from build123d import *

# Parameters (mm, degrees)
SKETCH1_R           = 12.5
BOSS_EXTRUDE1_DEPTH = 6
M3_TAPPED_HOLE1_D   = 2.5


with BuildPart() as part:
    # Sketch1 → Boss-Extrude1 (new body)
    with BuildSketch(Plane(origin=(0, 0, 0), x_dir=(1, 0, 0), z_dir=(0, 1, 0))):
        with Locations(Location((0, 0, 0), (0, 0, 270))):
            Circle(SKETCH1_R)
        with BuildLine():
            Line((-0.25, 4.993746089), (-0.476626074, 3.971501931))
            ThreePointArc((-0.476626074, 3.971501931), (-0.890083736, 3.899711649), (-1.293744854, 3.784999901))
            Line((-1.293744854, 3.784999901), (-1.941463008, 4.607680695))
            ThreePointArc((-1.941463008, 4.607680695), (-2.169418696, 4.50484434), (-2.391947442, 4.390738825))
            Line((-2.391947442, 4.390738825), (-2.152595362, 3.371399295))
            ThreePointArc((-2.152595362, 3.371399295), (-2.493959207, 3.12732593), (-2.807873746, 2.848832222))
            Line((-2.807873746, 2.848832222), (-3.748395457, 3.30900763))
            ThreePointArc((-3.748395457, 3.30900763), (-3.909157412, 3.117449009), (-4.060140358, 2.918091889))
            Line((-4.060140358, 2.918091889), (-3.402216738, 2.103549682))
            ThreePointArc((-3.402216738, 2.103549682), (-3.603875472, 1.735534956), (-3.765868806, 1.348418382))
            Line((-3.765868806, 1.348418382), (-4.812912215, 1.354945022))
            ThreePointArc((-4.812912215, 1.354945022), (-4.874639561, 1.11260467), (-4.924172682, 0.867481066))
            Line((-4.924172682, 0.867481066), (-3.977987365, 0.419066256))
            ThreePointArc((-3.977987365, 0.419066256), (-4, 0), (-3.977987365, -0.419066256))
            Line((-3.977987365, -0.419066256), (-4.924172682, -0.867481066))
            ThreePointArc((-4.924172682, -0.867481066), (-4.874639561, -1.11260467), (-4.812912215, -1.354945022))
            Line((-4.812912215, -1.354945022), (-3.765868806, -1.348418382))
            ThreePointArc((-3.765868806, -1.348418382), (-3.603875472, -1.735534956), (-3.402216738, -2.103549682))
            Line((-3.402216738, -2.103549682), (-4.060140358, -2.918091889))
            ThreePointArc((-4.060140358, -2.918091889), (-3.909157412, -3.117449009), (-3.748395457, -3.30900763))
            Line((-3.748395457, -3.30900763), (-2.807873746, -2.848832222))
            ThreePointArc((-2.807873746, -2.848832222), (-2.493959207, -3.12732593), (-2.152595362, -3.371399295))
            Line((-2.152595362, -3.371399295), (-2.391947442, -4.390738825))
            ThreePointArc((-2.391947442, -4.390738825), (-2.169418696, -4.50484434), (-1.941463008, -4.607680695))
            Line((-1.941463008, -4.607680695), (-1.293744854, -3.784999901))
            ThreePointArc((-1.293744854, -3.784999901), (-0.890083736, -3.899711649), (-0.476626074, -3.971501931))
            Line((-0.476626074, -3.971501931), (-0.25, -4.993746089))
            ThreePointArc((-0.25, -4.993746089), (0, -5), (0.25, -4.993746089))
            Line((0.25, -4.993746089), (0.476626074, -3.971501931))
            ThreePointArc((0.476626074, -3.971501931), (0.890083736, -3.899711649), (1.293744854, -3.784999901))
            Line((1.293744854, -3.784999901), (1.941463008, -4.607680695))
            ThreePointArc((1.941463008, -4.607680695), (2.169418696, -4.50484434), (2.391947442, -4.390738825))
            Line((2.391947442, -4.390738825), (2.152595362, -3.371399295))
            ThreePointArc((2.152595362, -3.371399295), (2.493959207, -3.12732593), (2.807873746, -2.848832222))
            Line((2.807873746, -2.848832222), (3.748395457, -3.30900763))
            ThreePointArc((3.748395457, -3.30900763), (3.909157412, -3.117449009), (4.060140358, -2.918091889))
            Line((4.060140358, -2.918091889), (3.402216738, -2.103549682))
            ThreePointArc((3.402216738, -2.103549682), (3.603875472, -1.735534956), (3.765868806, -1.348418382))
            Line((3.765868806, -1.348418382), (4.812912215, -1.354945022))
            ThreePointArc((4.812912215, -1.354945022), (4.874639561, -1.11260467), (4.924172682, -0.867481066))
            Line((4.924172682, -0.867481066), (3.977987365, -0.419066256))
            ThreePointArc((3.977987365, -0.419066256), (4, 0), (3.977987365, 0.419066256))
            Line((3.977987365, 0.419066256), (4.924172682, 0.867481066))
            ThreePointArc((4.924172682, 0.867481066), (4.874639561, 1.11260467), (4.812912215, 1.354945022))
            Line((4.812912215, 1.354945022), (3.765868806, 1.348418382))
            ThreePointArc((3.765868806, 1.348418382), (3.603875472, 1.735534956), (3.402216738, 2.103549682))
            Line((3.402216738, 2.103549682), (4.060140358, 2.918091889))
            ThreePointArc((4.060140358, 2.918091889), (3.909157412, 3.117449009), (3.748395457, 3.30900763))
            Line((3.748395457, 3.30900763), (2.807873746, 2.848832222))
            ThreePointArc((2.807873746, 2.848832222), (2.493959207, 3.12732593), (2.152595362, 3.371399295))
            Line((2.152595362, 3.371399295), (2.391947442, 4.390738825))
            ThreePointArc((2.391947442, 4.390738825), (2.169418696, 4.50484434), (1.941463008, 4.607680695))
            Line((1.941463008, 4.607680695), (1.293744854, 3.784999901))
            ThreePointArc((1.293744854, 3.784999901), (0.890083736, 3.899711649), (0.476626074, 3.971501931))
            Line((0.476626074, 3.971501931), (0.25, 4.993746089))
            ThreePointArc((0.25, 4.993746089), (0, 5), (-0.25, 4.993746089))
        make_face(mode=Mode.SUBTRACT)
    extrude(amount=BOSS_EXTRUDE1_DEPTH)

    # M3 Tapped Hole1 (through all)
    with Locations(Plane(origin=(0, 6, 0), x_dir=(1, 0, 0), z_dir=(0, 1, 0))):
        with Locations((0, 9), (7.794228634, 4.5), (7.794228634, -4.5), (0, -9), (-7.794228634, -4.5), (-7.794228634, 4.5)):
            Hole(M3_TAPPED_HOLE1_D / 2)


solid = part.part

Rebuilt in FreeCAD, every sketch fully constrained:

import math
import FreeCAD as App
import Part
import Sketcher
from FreeCAD import Vector
Q = App.Units.Quantity

doc = App.newDocument("Part")
body = doc.addObject("PartDesign::Body", "Body")

# Sketch on XZ plane
sketch1 = doc.addObject("Sketcher::SketchObject", "Sketch")
body.addObject(sketch1)
sketch1.AttachmentSupport = (doc.XZ_Plane, [""])
sketch1.MapMode = "FlatFace"
sketch1.addGeometry([
    Part.Circle(Vector(0, 0, 0), Vector(0, 0, 1), 12.5),  # 0
    Part.LineSegment(Vector(-0.476626, -3.971502, 0), Vector(-0.25, -4.993746, 0)),  # 1
    Part.ArcOfCircle(Part.Circle(Vector(0, 0, 0), Vector(0, 0, 1), 5), math.radians(-92.865984), math.radians(-87.134016)),  # 2
    Part.LineSegment(Vector(0.25, -4.993746, 0), Vector(0.476626, -3.971502, 0)),  # 3
    Part.ArcOfCircle(Part.Circle(Vector(0, 0, 0), Vector(0, 0, 1), 4), math.radians(-83.156575), math.radians(-71.12914)),  # 4
    Part.LineSegment(Vector(1.293745, -3.785, 0), Vector(1.941463, -4.607681, 0)),  # 5
    Part.ArcOfCircle(Part.Circle(Vector(0, -0.000001, 0), Vector(0, 0, 1), 4.999999), math.radians(-67.151699), math.radians(-61.41973)),  # 6
    Part.LineSegment(Vector(2.391947, -4.390739, 0), Vector(2.152595, -3.371399, 0)),  # 7
    Part.ArcOfCircle(Part.Circle(Vector(0, 0, 0), Vector(0, 0, 1), 4), math.radians(-57.442289), math.radians(-45.414854)),  # 8
    Part.LineSegment(Vector(2.807874, -2.848832, 0), Vector(3.748395, -3.309008, 0)),  # 9
    Part.ArcOfCircle(Part.Circle(Vector(0, 0, 0), Vector(0, 0, 1), 5), math.radians(-41.437412), math.radians(-35.705445)),  # 10
    Part.LineSegment(Vector(4.06014, -2.918092, 0), Vector(3.402217, -2.10355, 0)),  # 11
    Part.ArcOfCircle(Part.Circle(Vector(0, 0, 0), Vector(0, 0, 1), 4), math.radians(-31.728003), math.radians(-19.700568)),  # 12
    Part.LineSegment(Vector(3.765869, -1.348418, 0), Vector(4.812912, -1.354945, 0)),  # 13
    Part.ArcOfCircle(Part.Circle(Vector(0, 0, 0), Vector(0, 0, 1), 5), math.radians(-15.723127), math.radians(-9.991159)),  # 14
    Part.LineSegment(Vector(4.924173, -0.867481, 0), Vector(3.977987, -0.419066, 0)),  # 15
    Part.ArcOfCircle(Part.Circle(Vector(0, 0, 0), Vector(0, 0, 1), 4), math.radians(-6.013717), math.radians(6.013717)),  # 16
    Part.LineSegment(Vector(3.977987, 0.419066, 0), Vector(4.924173, 0.867481, 0)),  # 17
    Part.ArcOfCircle(Part.Circle(Vector(0, 0, 0), Vector(0, 0, 1), 5), math.radians(9.991159), math.radians(15.723127)),  # 18
    Part.LineSegment(Vector(4.812912, 1.354945, 0), Vector(3.765869, 1.348418, 0)),  # 19
    Part.ArcOfCircle(Part.Circle(Vector(0, 0, 0), Vector(0, 0, 1), 4), math.radians(19.700568), math.radians(31.728003)),  # 20
    Part.LineSegment(Vector(3.402217, 2.10355, 0), Vector(4.06014, 2.918092, 0)),  # 21
    Part.ArcOfCircle(Part.Circle(Vector(0, 0, 0), Vector(0, 0, 1), 5), math.radians(35.705445), math.radians(41.437412)),  # 22
    Part.LineSegment(Vector(3.748395, 3.309008, 0), Vector(2.807874, 2.848832, 0)),  # 23
    Part.ArcOfCircle(Part.Circle(Vector(0, 0, 0), Vector(0, 0, 1), 4), math.radians(45.414854), math.radians(57.442289)),  # 24
    Part.LineSegment(Vector(2.152595, 3.371399, 0), Vector(2.391947, 4.390739, 0)),  # 25
    Part.ArcOfCircle(Part.Circle(Vector(0, 0.000001, 0), Vector(0, 0, 1), 4.999999), math.radians(61.41973), math.radians(67.151699)),  # 26
    Part.LineSegment(Vector(1.941463, 4.607681, 0), Vector(1.293745, 3.785, 0)),  # 27
    Part.ArcOfCircle(Part.Circle(Vector(0, 0, 0), Vector(0, 0, 1), 4), math.radians(71.12914), math.radians(83.156575)),  # 28
    Part.LineSegment(Vector(0.476626, 3.971502, 0), Vector(0.25, 4.993746, 0)),  # 29
    Part.ArcOfCircle(Part.Circle(Vector(0, 0, 0), Vector(0, 0, 1), 5), math.radians(87.134016), math.radians(92.865984)),  # 30
    Part.LineSegment(Vector(-0.25, 4.993746, 0), Vector(-0.476626, 3.971502, 0)),  # 31
    Part.ArcOfCircle(Part.Circle(Vector(0, 0, 0), Vector(0, 0, 1), 4), math.radians(96.843425), math.radians(108.87086)),  # 32
    Part.LineSegment(Vector(-1.293745, 3.785, 0), Vector(-1.941463, 4.607681, 0)),  # 33
    Part.ArcOfCircle(Part.Circle(Vector(0, 0.000001, 0), Vector(0, 0, 1), 4.999999), math.radians(112.848301), math.radians(118.58027)),  # 34
    Part.LineSegment(Vector(-2.391947, 4.390739, 0), Vector(-2.152595, 3.371399, 0)),  # 35
    Part.ArcOfCircle(Part.Circle(Vector(0, 0, 0), Vector(0, 0, 1), 4), math.radians(122.557711), math.radians(134.585146)),  # 36
    Part.LineSegment(Vector(-2.807874, 2.848832, 0), Vector(-3.748395, 3.309008, 0)),  # 37
    Part.ArcOfCircle(Part.Circle(Vector(0, 0, 0), Vector(0, 0, 1), 5), math.radians(138.562588), math.radians(144.294555)),  # 38
    Part.LineSegment(Vector(-4.06014, 2.918092, 0), Vector(-3.402217, 2.10355, 0)),  # 39
    Part.ArcOfCircle(Part.Circle(Vector(0, 0, 0), Vector(0, 0, 1), 4), math.radians(148.271997), math.radians(160.299432)),  # 40
    Part.LineSegment(Vector(-3.765869, 1.348418, 0), Vector(-4.812912, 1.354945, 0)),  # 41
    Part.ArcOfCircle(Part.Circle(Vector(0, 0, 0), Vector(0, 0, 1), 5), math.radians(164.276873), math.radians(170.008841)),  # 42
    Part.LineSegment(Vector(-4.924173, 0.867481, 0), Vector(-3.977987, 0.419066, 0)),  # 43
    Part.ArcOfCircle(Part.Circle(Vector(0, 0, 0), Vector(0, 0, 1), 4), math.radians(173.986283), math.radians(186.013717)),  # 44
    Part.LineSegment(Vector(-3.977987, -0.419066, 0), Vector(-4.924173, -0.867481, 0)),  # 45
    Part.ArcOfCircle(Part.Circle(Vector(0, 0, 0), Vector(0, 0, 1), 5), math.radians(-170.008841), math.radians(-164.276873)),  # 46
    Part.LineSegment(Vector(-4.812912, -1.354945, 0), Vector(-3.765869, -1.348418, 0)),  # 47
    Part.ArcOfCircle(Part.Circle(Vector(0, 0, 0), Vector(0, 0, 1), 4), math.radians(-160.299432), math.radians(-148.271997)),  # 48
    Part.LineSegment(Vector(-3.402217, -2.10355, 0), Vector(-4.06014, -2.918092, 0)),  # 49
    Part.ArcOfCircle(Part.Circle(Vector(0, 0, 0), Vector(0, 0, 1), 5), math.radians(-144.294555), math.radians(-138.562588)),  # 50
    Part.LineSegment(Vector(-3.748395, -3.309008, 0), Vector(-2.807874, -2.848832, 0)),  # 51
    Part.ArcOfCircle(Part.Circle(Vector(0, 0, 0), Vector(0, 0, 1), 4), math.radians(-134.585146), math.radians(-122.557711)),  # 52
    Part.LineSegment(Vector(-2.152595, -3.371399, 0), Vector(-2.391947, -4.390739, 0)),  # 53
    Part.ArcOfCircle(Part.Circle(Vector(0, -0.000001, 0), Vector(0, 0, 1), 4.999999), math.radians(-118.58027), math.radians(-112.848301)),  # 54
    Part.LineSegment(Vector(-1.941463, -4.607681, 0), Vector(-1.293745, -3.785, 0)),  # 55
    Part.ArcOfCircle(Part.Circle(Vector(0, 0, 0), Vector(0, 0, 1), 4), math.radians(-108.87086), math.radians(-96.843425)),  # 56
], False)
sketch1.addConstraint([
    Sketcher.Constraint("Coincident", 1, 2, 2, 1),
    Sketcher.Constraint("Coincident", 2, 2, 3, 1),
    Sketcher.Constraint("Coincident", 3, 2, 4, 1),
    Sketcher.Constraint("Coincident", 4, 2, 5, 1),
    Sketcher.Constraint("Coincident", 5, 2, 6, 1),
    Sketcher.Constraint("Coincident", 6, 2, 7, 1),
    Sketcher.Constraint("Coincident", 7, 2, 8, 1),
    Sketcher.Constraint("Coincident", 8, 2, 9, 1),
    Sketcher.Constraint("Coincident", 9, 2, 10, 1),
    Sketcher.Constraint("Coincident", 10, 2, 11, 1),
    Sketcher.Constraint("Coincident", 11, 2, 12, 1),
    Sketcher.Constraint("Coincident", 12, 2, 13, 1),
    Sketcher.Constraint("Coincident", 13, 2, 14, 1),
    Sketcher.Constraint("Coincident", 14, 2, 15, 1),
    Sketcher.Constraint("Coincident", 15, 2, 16, 1),
    Sketcher.Constraint("Coincident", 16, 2, 17, 1),
    Sketcher.Constraint("Coincident", 17, 2, 18, 1),
    Sketcher.Constraint("Coincident", 18, 2, 19, 1),
    Sketcher.Constraint("Coincident", 19, 2, 20, 1),
    Sketcher.Constraint("Coincident", 20, 2, 21, 1),
    Sketcher.Constraint("Coincident", 21, 2, 22, 1),
    Sketcher.Constraint("Coincident", 22, 2, 23, 1),
    Sketcher.Constraint("Coincident", 23, 2, 24, 1),
    Sketcher.Constraint("Coincident", 24, 2, 25, 1),
    Sketcher.Constraint("Coincident", 25, 2, 26, 1),
    Sketcher.Constraint("Coincident", 26, 2, 27, 1),
    Sketcher.Constraint("Coincident", 27, 2, 28, 1),
    Sketcher.Constraint("Coincident", 28, 2, 29, 1),
    Sketcher.Constraint("Coincident", 29, 2, 30, 1),
    Sketcher.Constraint("Coincident", 30, 2, 31, 1),
    Sketcher.Constraint("Coincident", 31, 2, 32, 1),
    Sketcher.Constraint("Coincident", 32, 2, 33, 1),
    Sketcher.Constraint("Coincident", 33, 2, 34, 1),
    Sketcher.Constraint("Coincident", 34, 2, 35, 1),
    Sketcher.Constraint("Coincident", 35, 2, 36, 1),
    Sketcher.Constraint("Coincident", 36, 2, 37, 1),
    Sketcher.Constraint("Coincident", 37, 2, 38, 1),
    Sketcher.Constraint("Coincident", 38, 2, 39, 1),
    Sketcher.Constraint("Coincident", 39, 2, 40, 1),
    Sketcher.Constraint("Coincident", 40, 2, 41, 1),
    Sketcher.Constraint("Coincident", 41, 2, 42, 1),
    Sketcher.Constraint("Coincident", 42, 2, 43, 1),
    Sketcher.Constraint("Coincident", 43, 2, 44, 1),
    Sketcher.Constraint("Coincident", 44, 2, 45, 1),
    Sketcher.Constraint("Coincident", 45, 2, 46, 1),
    Sketcher.Constraint("Coincident", 46, 2, 47, 1),
    Sketcher.Constraint("Coincident", 47, 2, 48, 1),
    Sketcher.Constraint("Coincident", 48, 2, 49, 1),
    Sketcher.Constraint("Coincident", 49, 2, 50, 1),
    Sketcher.Constraint("Coincident", 50, 2, 51, 1),
    Sketcher.Constraint("Coincident", 51, 2, 52, 1),
    Sketcher.Constraint("Coincident", 52, 2, 53, 1),
    Sketcher.Constraint("Coincident", 53, 2, 54, 1),
    Sketcher.Constraint("Coincident", 54, 2, 55, 1),
    Sketcher.Constraint("Coincident", 55, 2, 56, 1),
    Sketcher.Constraint("Coincident", 56, 2, 1, 1),
    Sketcher.Constraint("Coincident", 0, 3, -1, 1),
    Sketcher.Constraint("Coincident", 2, 3, -1, 1),
    Sketcher.Constraint("Coincident", 4, 3, -1, 1),
    Sketcher.Constraint("Coincident", 6, 3, -1, 1),
    Sketcher.Constraint("Coincident", 8, 3, -1, 1),
    Sketcher.Constraint("Coincident", 10, 3, -1, 1),
    Sketcher.Constraint("Coincident", 12, 3, -1, 1),
    Sketcher.Constraint("Coincident", 14, 3, -1, 1),
    Sketcher.Constraint("Coincident", 16, 3, -1, 1),
    Sketcher.Constraint("Coincident", 18, 3, -1, 1),
    Sketcher.Constraint("Coincident", 20, 3, -1, 1),
    Sketcher.Constraint("Coincident", 22, 3, -1, 1),
    Sketcher.Constraint("Coincident", 24, 3, -1, 1),
    Sketcher.Constraint("Coincident", 26, 3, -1, 1),
    Sketcher.Constraint("Coincident", 28, 3, -1, 1),
    Sketcher.Constraint("Coincident", 30, 3, -1, 1),
    Sketcher.Constraint("Coincident", 32, 3, -1, 1),
    Sketcher.Constraint("Coincident", 34, 3, -1, 1),
    Sketcher.Constraint("Coincident", 36, 3, -1, 1),
    Sketcher.Constraint("Coincident", 38, 3, -1, 1),
    Sketcher.Constraint("Coincident", 40, 3, -1, 1),
    Sketcher.Constraint("Coincident", 42, 3, -1, 1),
    Sketcher.Constraint("Coincident", 44, 3, -1, 1),
    Sketcher.Constraint("Coincident", 46, 3, -1, 1),
    Sketcher.Constraint("Coincident", 48, 3, -1, 1),
    Sketcher.Constraint("Coincident", 50, 3, -1, 1),
    Sketcher.Constraint("Coincident", 52, 3, -1, 1),
    Sketcher.Constraint("Coincident", 54, 3, -1, 1),
    Sketcher.Constraint("Coincident", 56, 3, -1, 1),
    Sketcher.Constraint("Equal", 2, 6),
    Sketcher.Constraint("Equal", 4, 8),
    Sketcher.Constraint("Equal", 6, 10),
    Sketcher.Constraint("Equal", 8, 12),
    Sketcher.Constraint("Equal", 10, 14),
    Sketcher.Constraint("Equal", 12, 16),
    Sketcher.Constraint("Equal", 14, 18),
    Sketcher.Constraint("Equal", 16, 20),
    Sketcher.Constraint("Equal", 18, 22),
    Sketcher.Constraint("Equal", 20, 24),
    Sketcher.Constraint("Equal", 22, 26),
    Sketcher.Constraint("Equal", 24, 28),
    Sketcher.Constraint("Equal", 26, 30),
    Sketcher.Constraint("Equal", 28, 32),
    Sketcher.Constraint("Equal", 30, 34),
    Sketcher.Constraint("Equal", 32, 36),
    Sketcher.Constraint("Equal", 34, 38),
    Sketcher.Constraint("Equal", 36, 40),
    Sketcher.Constraint("Equal", 38, 42),
    Sketcher.Constraint("Equal", 40, 44),
    Sketcher.Constraint("Equal", 42, 46),
    Sketcher.Constraint("Equal", 44, 48),
    Sketcher.Constraint("Equal", 46, 50),
    Sketcher.Constraint("Equal", 48, 52),
    Sketcher.Constraint("Equal", 50, 54),
    Sketcher.Constraint("Equal", 52, 56),
    Sketcher.Constraint("Parallel", 1, 29),
    Sketcher.Constraint("Parallel", 3, 31),
    Sketcher.Constraint("Parallel", 5, 33),
    Sketcher.Constraint("Parallel", 7, 35),
    Sketcher.Constraint("Parallel", 9, 37),
    Sketcher.Constraint("Parallel", 11, 39),
    Sketcher.Constraint("Parallel", 13, 41),
    Sketcher.Constraint("Parallel", 15, 43),
    Sketcher.Constraint("Parallel", 17, 45),
    Sketcher.Constraint("Parallel", 19, 47),
    Sketcher.Constraint("Parallel", 21, 49),
    Sketcher.Constraint("Parallel", 23, 51),
    Sketcher.Constraint("Parallel", 25, 53),
    Sketcher.Constraint("Parallel", 27, 55),
    Sketcher.Constraint("Horizontal", 1, 2, 2, 2),
    Sketcher.Constraint("Horizontal", 29, 2, 30, 2),
    Sketcher.Constraint("Horizontal", 28, 2, 31, 2),
    Sketcher.Constraint("Horizontal", 27, 2, 32, 2),
    Sketcher.Constraint("Horizontal", 26, 2, 33, 2),
    Sketcher.Constraint("Horizontal", 25, 2, 34, 2),
    Sketcher.Constraint("Horizontal", 24, 2, 35, 2),
    Sketcher.Constraint("Horizontal", 23, 2, 36, 2),
    Sketcher.Constraint("Horizontal", 22, 2, 37, 2),
    Sketcher.Constraint("Horizontal", 21, 2, 38, 2),
    Sketcher.Constraint("Horizontal", 20, 2, 39, 2),
    Sketcher.Constraint("Horizontal", 19, 2, 40, 2),
    Sketcher.Constraint("Horizontal", 18, 2, 41, 2),
    Sketcher.Constraint("Horizontal", 17, 2, 42, 2),
    Sketcher.Constraint("Horizontal", 16, 2, 43, 2),
    Sketcher.Constraint("Horizontal", 15, 2, 44, 2),
    Sketcher.Constraint("Horizontal", 13, 2, 46, 2),
    Sketcher.Constraint("Horizontal", 11, 2, 48, 2),
    Sketcher.Constraint("Horizontal", 9, 2, 50, 2),
    Sketcher.Constraint("Horizontal", 7, 2, 52, 2),
    Sketcher.Constraint("Horizontal", 5, 2, 54, 2),
    Sketcher.Constraint("Vertical", 15, 2, 16, 2),
    Sketcher.Constraint("Vertical", 13, 2, 18, 2),
    Sketcher.Constraint("Vertical", 11, 2, 20, 2),
    Sketcher.Constraint("Vertical", 9, 2, 22, 2),
    Sketcher.Constraint("Vertical", 7, 2, 24, 2),
    Sketcher.Constraint("Vertical", 5, 2, 26, 2),
    Sketcher.Constraint("Vertical", 3, 2, 28, 2),
    Sketcher.Constraint("Equal", 3, 5),
    Sketcher.Constraint("Equal", 5, 7),
    Sketcher.Constraint("Equal", 7, 9),
    Sketcher.Constraint("Equal", 9, 11),
    Sketcher.Constraint("Equal", 11, 13),
    Sketcher.Constraint("Equal", 13, 15),
    Sketcher.Constraint("Diameter", 0, Q("25 mm")),
    Sketcher.Constraint("Radius", 2, Q("5 mm")),
    Sketcher.Constraint("Radius", 4, Q("4 mm")),
    Sketcher.Constraint("Angle", 1, Q("-77.5 deg")),
    Sketcher.Constraint("DistanceX", 1, 2, -1, 1, Q("0.25 mm")),
    Sketcher.Constraint("DistanceY", 4, 2, -1, 1, Q("3.785 mm")),
    Sketcher.Constraint("DistanceY", 7, 2, -1, 1, Q("3.371399 mm")),
    Sketcher.Constraint("DistanceX", -1, 1, 10, 2, Q("4.06014 mm")),
    Sketcher.Constraint("DistanceX", -1, 1, 12, 2, Q("3.765869 mm")),
    Sketcher.Constraint("DistanceY", 14, 2, -1, 1, Q("0.867481 mm")),
    Sketcher.Constraint("DistanceX", -1, 1, 8, 2, Q("2.807874 mm")),
])
pad1 = doc.addObject("PartDesign::Pad", "Pad")
body.addObject(pad1)
pad1.Profile = sketch1
pad1.Length = 6
pad1.Reversed = True

# Sketch on XZ plane
sketch2 = doc.addObject("Sketcher::SketchObject", "Sketch001")
body.addObject(sketch2)
sketch2.AttachmentSupport = (doc.XZ_Plane, [""])
sketch2.MapMode = "FlatFace"
sketch2.AttachmentOffset = App.Placement(Vector(0, 0, -6), App.Rotation())
sketch2.addGeometry([
    Part.Circle(Vector(0, -9, 0), Vector(0, 0, 1), 1.25),  # 0
    Part.Circle(Vector(7.794229, -4.5, 0), Vector(0, 0, 1), 1.25),  # 1
    Part.Circle(Vector(7.794229, 4.5, 0), Vector(0, 0, 1), 1.25),  # 2
    Part.Circle(Vector(0, 9, 0), Vector(0, 0, 1), 1.25),  # 3
    Part.Circle(Vector(-7.794229, 4.5, 0), Vector(0, 0, 1), 1.25),  # 4
    Part.Circle(Vector(-7.794229, -4.5, 0), Vector(0, 0, 1), 1.25),  # 5
], False)
sketch2.addConstraint([
    Sketcher.Constraint("Equal", 0, 1),
    Sketcher.Constraint("Equal", 1, 2),
    Sketcher.Constraint("Equal", 2, 3),
    Sketcher.Constraint("Equal", 3, 4),
    Sketcher.Constraint("Equal", 4, 5),
    Sketcher.Constraint("Symmetric", 0, 3, 3, 3, -1, 1),
    Sketcher.Constraint("Symmetric", 1, 3, 4, 3, -1, 1),
    Sketcher.Constraint("Symmetric", 2, 3, 5, 3, -1, 1),
    Sketcher.Constraint("Symmetric", 2, 3, 4, 3, -2),
    Sketcher.Constraint("PointOnObject", 0, 3, -2),
    Sketcher.Constraint("Diameter", 0, Q("2.5 mm")),
    Sketcher.Constraint("DistanceY", 0, 3, -1, 1, Q("9 mm")),
    Sketcher.Constraint("DistanceY", 1, 3, 2, 3, Q("9 mm")),
    Sketcher.Constraint("DistanceX", -1, 1, 1, 3, Q("7.794229 mm")),
])
doc.recompute()
hole = doc.addObject("PartDesign::Hole", "Hole")
body.addObject(hole)
hole.Profile = sketch2
hole.ThreadType = "None"
hole.Diameter = 2.5
hole.DepthType = "ThroughAll"
hole.Reversed = True

doc.recompute()
